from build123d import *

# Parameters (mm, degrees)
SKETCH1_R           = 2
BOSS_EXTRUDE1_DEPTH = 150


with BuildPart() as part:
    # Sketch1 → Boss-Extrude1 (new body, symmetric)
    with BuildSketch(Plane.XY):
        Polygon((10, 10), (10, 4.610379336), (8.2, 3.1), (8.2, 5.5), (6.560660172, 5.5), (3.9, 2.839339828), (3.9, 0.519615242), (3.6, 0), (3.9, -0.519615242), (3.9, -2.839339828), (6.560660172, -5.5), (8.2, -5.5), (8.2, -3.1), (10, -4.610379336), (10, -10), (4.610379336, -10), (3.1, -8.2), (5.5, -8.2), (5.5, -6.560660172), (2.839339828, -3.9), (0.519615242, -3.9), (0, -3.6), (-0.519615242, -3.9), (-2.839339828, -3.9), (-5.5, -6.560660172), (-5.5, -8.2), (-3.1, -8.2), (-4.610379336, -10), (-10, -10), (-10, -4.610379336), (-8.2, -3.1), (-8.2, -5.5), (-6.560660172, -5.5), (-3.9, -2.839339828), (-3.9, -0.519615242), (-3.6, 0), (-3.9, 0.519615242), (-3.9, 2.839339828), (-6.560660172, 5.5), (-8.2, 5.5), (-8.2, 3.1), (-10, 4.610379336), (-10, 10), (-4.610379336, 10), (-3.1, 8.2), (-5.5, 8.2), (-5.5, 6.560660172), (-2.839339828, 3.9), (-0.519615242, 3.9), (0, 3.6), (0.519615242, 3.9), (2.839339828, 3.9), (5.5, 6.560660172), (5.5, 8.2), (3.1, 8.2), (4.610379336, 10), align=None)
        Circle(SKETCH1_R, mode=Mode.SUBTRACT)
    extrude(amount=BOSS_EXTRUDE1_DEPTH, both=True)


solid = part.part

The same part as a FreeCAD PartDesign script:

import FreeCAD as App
import Part
import Sketcher

V = App.Vector
Q = App.Units.Quantity


def add_polygon(sketch, points):
    """Adds a closed chain of lines whose ends are joined by coincident constraints."""
    first, n = sketch.GeometryCount, len(points)
    for a, b in zip(points, points[1:] + points[:1]):
        sketch.addGeometry(Part.LineSegment(App.Vector(*a, 0), App.Vector(*b, 0)), False)
    for i in range(n):
        sketch.addConstraint(Sketcher.Constraint("Coincident", first + i, 2, first + (i + 1) % n, 1))

doc = App.newDocument("Part")
params = doc.addObject("Spreadsheet::Sheet", "Params")
for row, (alias, value) in enumerate([
    ("sketch1_diameter", "4 mm"),
    ("sketch1_width", "2.4 mm"),
    ("sketch1_length", "0.6 mm"),
    ("pad1_length", "300 mm"),
], start=1):
    params.set(f"A{row}", alias)
    params.set(f"B{row}", "=" + value)
    params.setAlias(f"B{row}", alias)

body = doc.addObject("PartDesign::Body", "Body")

sketch1 = doc.addObject("Sketcher::SketchObject", "Sketch")
body.addObject(sketch1)
sketch1.AttachmentSupport = (doc.XY_Plane, [""])
sketch1.MapMode = "FlatFace"
add_polygon(sketch1, [(10, 4.6), (10, 10), (4.6, 10), (3.1, 8.2), (5.5, 8.2), (5.5, 6.6), (2.8, 3.9), (0.5, 3.9), (0, 3.6), (-0.5, 3.9), (-2.8, 3.9), (-5.5, 6.6), (-5.5, 8.2), (-3.1, 8.2), (-4.6, 10), (-10, 10), (-10, 4.6), (-8.2, 3.1), (-8.2, 5.5), (-6.6, 5.5), (-3.9, 2.8), (-3.9, 0.5), (-3.6, 0), (-3.9, -0.5), (-3.9, -2.8), (-6.6, -5.5), (-8.2, -5.5), (-8.2, -3.1), (-10, -4.6), (-10, -10), (-4.6, -10), (-3.1, -8.2), (-5.5, -8.2), (-5.5, -6.6), (-2.8, -3.9), (-0.5, -3.9), (0, -3.6), (0.5, -3.9), (2.8, -3.9), (5.5, -6.6), (5.5, -8.2), (3.1, -8.2), (4.6, -10), (10, -10), (10, -4.6), (8.2, -3.1), (8.2, -5.5), (6.6, -5.5), (3.9, -2.8), (3.9, -0.5), (3.6, 0), (3.9, 0.5), (3.9, 2.8), (6.6, 5.5), (8.2, 5.5), (8.2, 3.1)])
sketch1.addGeometry(Part.Circle(V(0, 0, 0), V(0, 0, 1), 2), False)
sketch1.addConstraint([
    Sketcher.Constraint("Vertical", 0),
    Sketcher.Constraint("Horizontal", 1),
    Sketcher.Constraint("Horizontal", 3),
    Sketcher.Constraint("Vertical", 4),
    Sketcher.Constraint("Horizontal", 6),
    Sketcher.Constraint("Horizontal", 9),
    Sketcher.Constraint("Vertical", 11),
    Sketcher.Constraint("Horizontal", 12),
    Sketcher.Constraint("Horizontal", 14),
    Sketcher.Constraint("Vertical", 15),
    Sketcher.Constraint("Vertical", 17),
    Sketcher.Constraint("Horizontal", 18),
    Sketcher.Constraint("Vertical", 20),
    Sketcher.Constraint("Vertical", 23),
    Sketcher.Constraint("Horizontal", 25),
    Sketcher.Constraint("Vertical", 26),
    Sketcher.Constraint("Vertical", 28),
    Sketcher.Constraint("Horizontal", 29),
    Sketcher.Constraint("Horizontal", 31),
    Sketcher.Constraint("Vertical", 32),
    Sketcher.Constraint("Horizontal", 34),
    Sketcher.Constraint("Horizontal", 37),
    Sketcher.Constraint("Vertical", 39),
    Sketcher.Constraint("Horizontal", 40),
    Sketcher.Constraint("Horizontal", 42),
    Sketcher.Constraint("Vertical", 43),
    Sketcher.Constraint("Vertical", 45),
    Sketcher.Constraint("Horizontal", 46),
    Sketcher.Constraint("Vertical", 48),
    Sketcher.Constraint("Vertical", 51),
    Sketcher.Constraint("Horizontal", 53),
    Sketcher.Constraint("Vertical", 54),
    Sketcher.Constraint("Coincident", 56, 3, -1, 1),
    Sketcher.Constraint("Symmetric", 0, 2, 28, 2, -1, 1),
    Sketcher.Constraint("Symmetric", 2, 2, 30, 2, -1, 1),
    Sketcher.Constraint("Symmetric", 4, 2, 32, 2, -1, 1),
    Sketcher.Constraint("Symmetric", 5, 2, 33, 2, -1, 1),
    Sketcher.Constraint("Symmetric", 7, 2, 35, 2, -1, 1),
    Sketcher.Constraint("Symmetric", 8, 2, 36, 2, -1, 1),
    Sketcher.Constraint("Symmetric", 10, 2, 38, 2, -1, 1),
    Sketcher.Constraint("Symmetric", 12, 2, 40, 2, -1, 1),
    Sketcher.Constraint("Symmetric", 13, 2, 41, 2, -1, 1),
    Sketcher.Constraint("Symmetric", 15, 2, 43, 2, -1, 1),
    Sketcher.Constraint("Symmetric", 16, 2, 44, 2, -1, 1),
    Sketcher.Constraint("Symmetric", 18, 2, 46, 2, -1, 1),
    Sketcher.Constraint("Symmetric", 19, 2, 47, 2, -1, 1),
    Sketcher.Constraint("Symmetric", 21, 2, 49, 2, -1, 1),
    Sketcher.Constraint("Symmetric", 22, 2, 50, 2, -1, 1),
    Sketcher.Constraint("Symmetric", 24, 2, 52, 2, -1, 1),
    Sketcher.Constraint("Symmetric", 26, 2, 54, 2, -1, 1),
    Sketcher.Constraint("Symmetric", 6, 2, 8, 2, -2),
    Sketcher.Constraint("Symmetric", 4, 2, 10, 2, -2),
    Sketcher.Constraint("Symmetric", 2, 2, 12, 2, -2),
    Sketcher.Constraint("Symmetric", 1, 2, 13, 2, -2),
    Sketcher.Constraint("Symmetric", 27, 2, 43, 2, -2),
    Sketcher.Constraint("Symmetric", 26, 2, 44, 2, -2),
    Sketcher.Constraint("Symmetric", 24, 2, 46, 2, -2),
    Sketcher.Constraint("Symmetric", 23, 2, 47, 2, -2),
    Sketcher.Constraint("PointOnObject", 7, 2, -2),
    Sketcher.Constraint("PointOnObject", 21, 2, -1),
    Sketcher.Constraint("Perpendicular", 5, 10),
    Sketcher.Constraint("Perpendicular", 2, 16),
    Sketcher.Constraint("Parallel", 10, 19),
    Sketcher.Constraint("Perpendicular", 7, 21),
    Sketcher.Constraint("Perpendicular", 8, 22),
    Sketcher.Constraint("Perpendicular", 19, 24),
    Sketcher.Constraint("Perpendicular", 16, 30),
    Sketcher.Constraint("Perpendicular", 21, 35),
    Sketcher.Constraint("Perpendicular", 33, 38),
    Sketcher.Constraint("Perpendicular", 35, 49),
    Sketcher.Constraint("Perpendicular", 47, 52),
    Sketcher.Constraint("Perpendicular", 41, 55),
    Sketcher.Constraint("Equal", 42, 0),
    Sketcher.Constraint("Equal", 53, 4),
    Sketcher.Constraint("Equal", 40, 17),
    Sketcher.Constraint("Equal", 37, 20),
    Sketcher.Constraint("Equal", 13, 16),
    Sketcher.Constraint("Equal", 10, 19),
    Sketcher.Constraint("Equal", 8, 21),
    Sketcher.Constraint("Diameter", 56, Q("4 mm")),
    Sketcher.Constraint("Angle", 2, Q("-130 deg")),
    Sketcher.Constraint("Angle", 7, Q("-150 deg")),
    Sketcher.Constraint("DistanceX", 3, 1, 3, 2, Q("2.4 mm")),
    Sketcher.Constraint("DistanceX", -1, 1, 0, 2, Q("10 mm")),
    Sketcher.Constraint("Distance", 7, Q("0.6 mm")),
    Sketcher.Constraint("DistanceX", -1, 1, 2, 2, Q("3.1 mm")),
    Sketcher.Constraint("DistanceY", -1, 1, 2, 2, Q("8.2 mm")),
    Sketcher.Constraint("DistanceY", -1, 1, 5, 2, Q("3.9 mm")),
    Sketcher.Constraint("DistanceX", 18, 1, 18, 2, Q("1.63934 mm")),
])
sketch1.setExpression("Constraints[135]", "Params.sketch1_diameter")
sketch1.setExpression("Constraints[138]", "Params.sketch1_width")
sketch1.setExpression("Constraints[140]", "Params.sketch1_length")
pad1 = doc.addObject("PartDesign::Pad", "Pad")
body.addObject(pad1)
pad1.Profile = sketch1
pad1.setExpression("Length", "Params.pad1_length")
pad1.Midplane = True

doc.recompute()
